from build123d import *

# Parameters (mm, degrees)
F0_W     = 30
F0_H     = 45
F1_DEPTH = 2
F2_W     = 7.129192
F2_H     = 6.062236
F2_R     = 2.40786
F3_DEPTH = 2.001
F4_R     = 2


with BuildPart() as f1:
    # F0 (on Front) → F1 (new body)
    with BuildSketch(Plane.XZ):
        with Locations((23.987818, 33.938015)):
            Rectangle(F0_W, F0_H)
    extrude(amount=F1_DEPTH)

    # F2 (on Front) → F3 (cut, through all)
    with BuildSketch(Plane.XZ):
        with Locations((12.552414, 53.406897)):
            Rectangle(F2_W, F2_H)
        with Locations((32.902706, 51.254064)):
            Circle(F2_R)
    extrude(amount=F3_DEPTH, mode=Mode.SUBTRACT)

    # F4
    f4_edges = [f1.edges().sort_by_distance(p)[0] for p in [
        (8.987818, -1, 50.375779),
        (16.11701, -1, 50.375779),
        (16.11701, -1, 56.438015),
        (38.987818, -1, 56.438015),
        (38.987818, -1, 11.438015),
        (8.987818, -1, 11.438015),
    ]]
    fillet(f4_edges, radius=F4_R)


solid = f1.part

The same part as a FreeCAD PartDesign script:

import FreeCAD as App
import Part
import Sketcher

V = App.Vector


def edges_at(feature, points):
    """Names of the edges that pass closest to the given points."""
    edges = feature.Shape.Edges
    near = lambda p: min(range(len(edges)), key=lambda i: edges[i].distToShape(Part.Vertex(*p))[0])
    return sorted({f"Edge{near(p) + 1}" for p in points})

doc = App.newDocument("Part")
body = doc.addObject("PartDesign::Body", "Body")

sketch1 = body.newObject("Sketcher::SketchObject", "Sketch")
sketch1.AttachmentSupport = (doc.getObject("XZ_Plane"), [""])
sketch1.MapMode = "FlatFace"
sketch1.addGeometry(Part.LineSegment(V(9, 56, 0), V(9, 11, 0)), False)
sketch1.addGeometry(Part.LineSegment(V(9, 11, 0), V(39, 11, 0)), False)
sketch1.addGeometry(Part.LineSegment(V(39, 11, 0), V(39, 56, 0)), False)
sketch1.addGeometry(Part.LineSegment(V(39, 56, 0), V(9, 56, 0)), False)
sketch1.addConstraint(Sketcher.Constraint("Coincident", 0, 2, 1, 1))
sketch1.addConstraint(Sketcher.Constraint("Coincident", 1, 2, 2, 1))
sketch1.addConstraint(Sketcher.Constraint("Coincident", 2, 2, 3, 1))
sketch1.addConstraint(Sketcher.Constraint("Coincident", 3, 2, 0, 1))
sketch1.addConstraint(Sketcher.Constraint("Vertical", 0))
sketch1.addConstraint(Sketcher.Constraint("Horizontal", 1))
sketch1.addConstraint(Sketcher.Constraint("Vertical", 2))
sketch1.addConstraint(Sketcher.Constraint("Horizontal", 3))
sketch1.addConstraint(Sketcher.Constraint("DistanceX", 1, 1, 1, 2, 30.0))
sketch1.addConstraint(Sketcher.Constraint("DistanceY", 0, 2, 0, 1, 45.0))
sketch1.addConstraint(Sketcher.Constraint("DistanceX", -1, 1, 0, 2, 8.987818))
sketch1.addConstraint(Sketcher.Constraint("DistanceY", -1, 1, 0, 2, 11.438015))
pad1 = body.newObject("PartDesign::Pad", "Pad")
pad1.Profile = sketch1
pad1.Length = 2

sketch2 = body.newObject("Sketcher::SketchObject", "Sketch001")
sketch2.AttachmentSupport = (doc.getObject("XZ_Plane"), [""])
sketch2.MapMode = "FlatFace"
sketch2.addGeometry(Part.LineSegment(V(9, 56.4, 0), V(9, 50.4, 0)), False)
sketch2.addGeometry(Part.LineSegment(V(9, 50.4, 0), V(16.1, 50.4, 0)), False)
sketch2.addGeometry(Part.LineSegment(V(16.1, 50.4, 0), V(16.1, 56.4, 0)), False)
sketch2.addGeometry(Part.LineSegment(V(16.1, 56.4, 0), V(9, 56.4, 0)), False)
sketch2.addGeometry(Part.Circle(V(32.9, 51.3, 0), V(0, 0, 1), 2.4), False)
sketch2.addConstraint(Sketcher.Constraint("Coincident", 0, 2, 1, 1))
sketch2.addConstraint(Sketcher.Constraint("Coincident", 1, 2, 2, 1))
sketch2.addConstraint(Sketcher.Constraint("Coincident", 2, 2, 3, 1))
sketch2.addConstraint(Sketcher.Constraint("Coincident", 3, 2, 0, 1))
sketch2.addConstraint(Sketcher.Constraint("Vertical", 0))
sketch2.addConstraint(Sketcher.Constraint("Horizontal", 1))
sketch2.addConstraint(Sketcher.Constraint("Vertical", 2))
sketch2.addConstraint(Sketcher.Constraint("Horizontal", 3))
sketch2.addConstraint(Sketcher.Constraint("Diameter", 4, 4.81572))
sketch2.addConstraint(Sketcher.Constraint("DistanceX", 1, 1, 1, 2, 7.129192))
sketch2.addConstraint(Sketcher.Constraint("DistanceY", 0, 2, 0, 1, 6.062236))
sketch2.addConstraint(Sketcher.Constraint("DistanceX", -1, 1, 0, 2, 8.987818))
sketch2.addConstraint(Sketcher.Constraint("DistanceY", -1, 1, 0, 2, 50.375779))
sketch2.addConstraint(Sketcher.Constraint("DistanceX", 0, 2, 4, 3, 23.914888))
sketch2.addConstraint(Sketcher.Constraint("DistanceY", 4, 3, 2, 2, 5.183951))
pocket1 = body.newObject("PartDesign::Pocket", "Pocket")
pocket1.Profile = sketch2
pocket1.Type = "ThroughAll"
pocket1.Reversed = True
doc.recompute()

fillet = body.newObject("PartDesign::Fillet", "Fillet")
fillet.Base = (pocket1, edges_at(pocket1, [
    (8.988, -1, 50.376),
    (16.117, -1, 50.376),
    (16.117, -1, 56.438),
    (38.988, -1, 56.438),
    (38.988, -1, 11.438),
    (8.988, -1, 11.438),
]))
fillet.Radius = 2

doc.recompute()
